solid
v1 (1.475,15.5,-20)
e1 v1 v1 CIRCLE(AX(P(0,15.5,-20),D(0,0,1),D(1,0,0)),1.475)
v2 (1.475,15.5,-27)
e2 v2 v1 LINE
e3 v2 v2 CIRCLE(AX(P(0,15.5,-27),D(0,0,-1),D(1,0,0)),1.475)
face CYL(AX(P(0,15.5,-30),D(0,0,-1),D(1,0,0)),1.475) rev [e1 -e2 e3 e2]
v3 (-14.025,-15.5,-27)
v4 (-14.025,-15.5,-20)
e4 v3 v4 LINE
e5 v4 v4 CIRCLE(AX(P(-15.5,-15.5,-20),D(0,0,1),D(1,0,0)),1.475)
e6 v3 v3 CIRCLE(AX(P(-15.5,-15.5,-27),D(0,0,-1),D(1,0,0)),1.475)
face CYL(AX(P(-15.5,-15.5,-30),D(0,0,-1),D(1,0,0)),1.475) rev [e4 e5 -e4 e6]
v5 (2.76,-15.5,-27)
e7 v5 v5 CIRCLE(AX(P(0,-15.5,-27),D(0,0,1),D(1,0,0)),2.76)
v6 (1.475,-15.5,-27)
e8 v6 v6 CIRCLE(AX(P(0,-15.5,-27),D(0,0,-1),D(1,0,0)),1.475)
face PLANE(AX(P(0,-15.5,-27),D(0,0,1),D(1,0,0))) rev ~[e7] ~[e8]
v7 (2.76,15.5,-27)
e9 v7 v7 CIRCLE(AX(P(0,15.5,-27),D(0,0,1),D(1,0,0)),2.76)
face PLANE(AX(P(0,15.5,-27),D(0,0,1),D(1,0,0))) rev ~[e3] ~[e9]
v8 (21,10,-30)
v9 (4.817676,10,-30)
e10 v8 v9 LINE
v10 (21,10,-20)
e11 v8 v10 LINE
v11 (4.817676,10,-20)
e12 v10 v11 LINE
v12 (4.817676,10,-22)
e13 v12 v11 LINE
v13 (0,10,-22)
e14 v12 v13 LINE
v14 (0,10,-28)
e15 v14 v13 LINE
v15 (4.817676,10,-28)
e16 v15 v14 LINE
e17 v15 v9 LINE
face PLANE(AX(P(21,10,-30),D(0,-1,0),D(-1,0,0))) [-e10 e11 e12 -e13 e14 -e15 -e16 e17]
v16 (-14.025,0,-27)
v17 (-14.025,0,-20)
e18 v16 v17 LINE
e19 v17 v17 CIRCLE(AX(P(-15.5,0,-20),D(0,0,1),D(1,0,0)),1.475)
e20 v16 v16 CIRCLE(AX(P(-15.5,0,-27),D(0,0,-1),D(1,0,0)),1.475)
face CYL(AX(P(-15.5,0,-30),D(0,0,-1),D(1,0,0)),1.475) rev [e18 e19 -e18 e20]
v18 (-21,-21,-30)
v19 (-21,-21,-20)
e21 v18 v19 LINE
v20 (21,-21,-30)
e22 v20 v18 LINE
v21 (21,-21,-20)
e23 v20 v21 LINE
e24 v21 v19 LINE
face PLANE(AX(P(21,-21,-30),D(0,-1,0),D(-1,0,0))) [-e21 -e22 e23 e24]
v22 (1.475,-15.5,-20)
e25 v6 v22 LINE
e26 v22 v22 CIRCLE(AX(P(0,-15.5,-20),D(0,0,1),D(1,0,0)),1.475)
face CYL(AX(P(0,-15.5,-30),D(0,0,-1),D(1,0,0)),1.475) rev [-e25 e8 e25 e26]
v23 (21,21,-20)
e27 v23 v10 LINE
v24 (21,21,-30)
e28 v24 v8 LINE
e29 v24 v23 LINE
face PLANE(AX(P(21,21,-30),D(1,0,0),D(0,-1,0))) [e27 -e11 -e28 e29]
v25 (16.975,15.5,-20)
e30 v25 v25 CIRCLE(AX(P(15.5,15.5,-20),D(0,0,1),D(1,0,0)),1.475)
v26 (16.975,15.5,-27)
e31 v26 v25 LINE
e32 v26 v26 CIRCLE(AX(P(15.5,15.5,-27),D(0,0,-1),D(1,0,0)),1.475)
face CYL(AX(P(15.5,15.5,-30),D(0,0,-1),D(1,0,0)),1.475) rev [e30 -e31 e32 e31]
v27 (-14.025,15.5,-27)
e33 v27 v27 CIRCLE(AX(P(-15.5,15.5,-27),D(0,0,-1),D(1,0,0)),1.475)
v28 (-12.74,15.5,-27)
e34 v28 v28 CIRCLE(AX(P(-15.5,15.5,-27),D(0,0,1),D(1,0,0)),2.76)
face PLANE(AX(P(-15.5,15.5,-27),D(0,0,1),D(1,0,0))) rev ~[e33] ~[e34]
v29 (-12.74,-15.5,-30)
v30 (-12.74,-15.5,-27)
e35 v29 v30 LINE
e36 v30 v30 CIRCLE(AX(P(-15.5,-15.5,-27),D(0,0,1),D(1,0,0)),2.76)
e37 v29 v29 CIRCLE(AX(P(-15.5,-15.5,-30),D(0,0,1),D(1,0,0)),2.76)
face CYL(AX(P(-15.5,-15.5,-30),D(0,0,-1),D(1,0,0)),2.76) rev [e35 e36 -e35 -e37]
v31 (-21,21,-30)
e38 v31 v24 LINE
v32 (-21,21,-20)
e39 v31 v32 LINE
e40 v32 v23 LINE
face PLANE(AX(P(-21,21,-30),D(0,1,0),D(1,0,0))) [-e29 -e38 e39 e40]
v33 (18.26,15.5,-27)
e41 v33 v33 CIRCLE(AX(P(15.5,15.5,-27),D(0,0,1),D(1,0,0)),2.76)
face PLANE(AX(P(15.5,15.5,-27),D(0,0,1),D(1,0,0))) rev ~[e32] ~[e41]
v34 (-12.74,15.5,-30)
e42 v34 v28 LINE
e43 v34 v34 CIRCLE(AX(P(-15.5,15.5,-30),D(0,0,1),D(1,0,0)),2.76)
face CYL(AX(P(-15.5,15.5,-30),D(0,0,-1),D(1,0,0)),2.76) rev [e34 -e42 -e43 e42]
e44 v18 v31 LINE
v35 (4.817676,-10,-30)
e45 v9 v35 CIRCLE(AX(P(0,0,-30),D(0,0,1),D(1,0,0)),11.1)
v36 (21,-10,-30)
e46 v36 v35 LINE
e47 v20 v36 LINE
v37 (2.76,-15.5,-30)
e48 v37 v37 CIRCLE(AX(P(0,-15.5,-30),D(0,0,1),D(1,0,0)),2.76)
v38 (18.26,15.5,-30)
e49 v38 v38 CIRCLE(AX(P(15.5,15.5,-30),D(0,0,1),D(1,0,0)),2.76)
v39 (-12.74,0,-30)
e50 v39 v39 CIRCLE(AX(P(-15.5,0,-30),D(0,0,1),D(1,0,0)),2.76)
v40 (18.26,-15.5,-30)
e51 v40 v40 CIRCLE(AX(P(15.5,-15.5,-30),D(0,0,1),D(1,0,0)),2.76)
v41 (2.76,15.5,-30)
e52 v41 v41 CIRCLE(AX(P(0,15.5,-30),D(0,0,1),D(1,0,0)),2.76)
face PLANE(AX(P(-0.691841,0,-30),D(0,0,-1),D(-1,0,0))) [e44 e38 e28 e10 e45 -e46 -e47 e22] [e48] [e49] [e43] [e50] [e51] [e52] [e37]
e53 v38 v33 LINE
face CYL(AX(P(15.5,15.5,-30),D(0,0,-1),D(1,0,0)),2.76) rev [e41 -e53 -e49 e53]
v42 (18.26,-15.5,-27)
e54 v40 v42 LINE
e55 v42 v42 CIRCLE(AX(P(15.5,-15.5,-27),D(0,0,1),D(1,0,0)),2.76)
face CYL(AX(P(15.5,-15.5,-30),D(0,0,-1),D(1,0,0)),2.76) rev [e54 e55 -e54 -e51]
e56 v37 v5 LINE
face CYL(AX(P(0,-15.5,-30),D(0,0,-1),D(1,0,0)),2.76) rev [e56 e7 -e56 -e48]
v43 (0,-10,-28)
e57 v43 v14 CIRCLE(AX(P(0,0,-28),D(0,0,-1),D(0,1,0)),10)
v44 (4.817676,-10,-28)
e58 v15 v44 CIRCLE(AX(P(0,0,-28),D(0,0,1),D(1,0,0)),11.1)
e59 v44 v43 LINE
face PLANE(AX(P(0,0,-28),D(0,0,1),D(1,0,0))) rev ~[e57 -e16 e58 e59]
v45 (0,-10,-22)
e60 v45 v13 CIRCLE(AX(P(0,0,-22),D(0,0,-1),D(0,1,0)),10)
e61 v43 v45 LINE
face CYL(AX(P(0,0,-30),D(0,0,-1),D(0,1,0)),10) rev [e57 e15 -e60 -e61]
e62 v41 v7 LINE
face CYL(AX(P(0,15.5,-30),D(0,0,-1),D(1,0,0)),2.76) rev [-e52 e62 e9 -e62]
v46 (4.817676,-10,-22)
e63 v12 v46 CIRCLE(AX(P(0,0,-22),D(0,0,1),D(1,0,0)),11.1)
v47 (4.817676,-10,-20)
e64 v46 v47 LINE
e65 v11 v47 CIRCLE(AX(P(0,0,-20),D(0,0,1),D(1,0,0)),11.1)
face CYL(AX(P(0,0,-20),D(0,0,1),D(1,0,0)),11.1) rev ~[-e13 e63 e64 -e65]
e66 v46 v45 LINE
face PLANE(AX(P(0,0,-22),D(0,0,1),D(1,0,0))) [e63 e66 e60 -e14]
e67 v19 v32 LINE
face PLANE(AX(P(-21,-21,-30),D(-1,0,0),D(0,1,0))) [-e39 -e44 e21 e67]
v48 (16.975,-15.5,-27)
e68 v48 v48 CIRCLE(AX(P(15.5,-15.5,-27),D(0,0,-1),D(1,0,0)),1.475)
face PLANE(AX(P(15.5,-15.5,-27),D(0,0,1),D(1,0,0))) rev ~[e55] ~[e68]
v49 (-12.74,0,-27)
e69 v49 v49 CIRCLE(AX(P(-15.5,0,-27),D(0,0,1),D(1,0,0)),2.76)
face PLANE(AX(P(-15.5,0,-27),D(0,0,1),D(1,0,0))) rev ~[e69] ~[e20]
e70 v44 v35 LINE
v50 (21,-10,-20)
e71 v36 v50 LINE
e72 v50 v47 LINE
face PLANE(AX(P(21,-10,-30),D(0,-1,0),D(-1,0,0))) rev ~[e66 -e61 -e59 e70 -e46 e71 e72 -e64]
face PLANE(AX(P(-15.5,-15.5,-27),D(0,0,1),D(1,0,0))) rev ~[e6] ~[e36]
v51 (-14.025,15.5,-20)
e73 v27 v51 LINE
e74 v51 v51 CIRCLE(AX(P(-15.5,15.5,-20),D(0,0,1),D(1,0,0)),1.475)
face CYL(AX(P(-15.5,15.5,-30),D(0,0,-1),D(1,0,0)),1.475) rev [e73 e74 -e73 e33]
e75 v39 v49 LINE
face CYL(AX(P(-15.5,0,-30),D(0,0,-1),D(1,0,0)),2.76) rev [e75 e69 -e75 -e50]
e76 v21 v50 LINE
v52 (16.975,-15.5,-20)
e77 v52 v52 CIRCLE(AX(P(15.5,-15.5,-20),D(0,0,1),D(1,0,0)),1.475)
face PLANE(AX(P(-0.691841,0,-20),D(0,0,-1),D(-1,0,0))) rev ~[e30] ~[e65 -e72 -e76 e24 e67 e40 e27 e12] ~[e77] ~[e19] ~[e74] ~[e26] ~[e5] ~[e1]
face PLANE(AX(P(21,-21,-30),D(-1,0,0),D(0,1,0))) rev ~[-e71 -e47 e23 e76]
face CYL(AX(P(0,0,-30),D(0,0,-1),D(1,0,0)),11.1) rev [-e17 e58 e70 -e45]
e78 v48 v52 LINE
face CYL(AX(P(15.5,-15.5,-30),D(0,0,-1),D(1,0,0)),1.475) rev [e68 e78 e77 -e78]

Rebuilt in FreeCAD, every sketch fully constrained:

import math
import FreeCAD as App
import Part
import Sketcher
Q = App.Units.Quantity

doc = App.newDocument("Part")
body = doc.addObject("PartDesign::Body", "Body")

sketch1 = doc.addObject("Sketcher::SketchObject", "Sketch")
body.addObject(sketch1)
sketch1.AttachmentSupport = (doc.XY_Plane, [""])
sketch1.MapMode = "FlatFace"
sketch1.addGeometry(Part.LineSegment(App.Vector(21, 21, 0), App.Vector(-21, 21, 0)), False)
sketch1.addGeometry(Part.LineSegment(App.Vector(-21, 21, 0), App.Vector(-21, -21, 0)), False)
sketch1.addGeometry(Part.LineSegment(App.Vector(-21, -21, 0), App.Vector(21, -21, 0)), False)
sketch1.addGeometry(Part.LineSegment(App.Vector(21, -21, 0), App.Vector(21, -10, 0)), False)
sketch1.addGeometry(Part.LineSegment(App.Vector(21, -10, 0), App.Vector(0, -10, 0)), False)
sketch1.addGeometry(Part.ArcOfCircle(Part.Circle(App.Vector(0, 0, 0), App.Vector(0, 0, 1), 10), math.radians(90), math.radians(270)), False)
sketch1.addGeometry(Part.LineSegment(App.Vector(0, 10, 0), App.Vector(21, 10, 0)), False)
sketch1.addGeometry(Part.LineSegment(App.Vector(21, 10, 0), App.Vector(21, 21, 0)), False)
sketch1.addGeometry(Part.Circle(App.Vector(15.5, -15.5, 0), App.Vector(0, 0, 1), 1.5), False)
sketch1.addGeometry(Part.Circle(App.Vector(0, -15.5, 0), App.Vector(0, 0, 1), 1.5), False)
sketch1.addGeometry(Part.Circle(App.Vector(-15.5, -15.5, 0), App.Vector(0, 0, 1), 1.5), False)
sketch1.addGeometry(Part.Circle(App.Vector(15.5, 15.5, 0), App.Vector(0, 0, 1), 1.5), False)
sketch1.addGeometry(Part.Circle(App.Vector(-15.5, 0, 0), App.Vector(0, 0, 1), 1.5), False)
sketch1.addGeometry(Part.Circle(App.Vector(0, 15.5, 0), App.Vector(0, 0, 1), 1.5), False)
sketch1.addGeometry(Part.Circle(App.Vector(-15.5, 15.5, 0), App.Vector(0, 0, 1), 1.5), False)
sketch1.addConstraint(Sketcher.Constraint("Coincident", 0, 2, 1, 1))
sketch1.addConstraint(Sketcher.Constraint("Coincident", 1, 2, 2, 1))
sketch1.addConstraint(Sketcher.Constraint("Coincident", 2, 2, 3, 1))
sketch1.addConstraint(Sketcher.Constraint("Coincident", 3, 2, 4, 1))
sketch1.addConstraint(Sketcher.Constraint("Tangent", 4, 2, 5, 2))
sketch1.addConstraint(Sketcher.Constraint("Tangent", 5, 1, 6, 1))
sketch1.addConstraint(Sketcher.Constraint("Coincident", 6, 2, 7, 1))
sketch1.addConstraint(Sketcher.Constraint("Coincident", 7, 2, 0, 1))
sketch1.addConstraint(Sketcher.Constraint("Horizontal", 0))
sketch1.addConstraint(Sketcher.Constraint("Vertical", 1))
sketch1.addConstraint(Sketcher.Constraint("Horizontal", 2))
sketch1.addConstraint(Sketcher.Constraint("Vertical", 3))
sketch1.addConstraint(Sketcher.Constraint("Horizontal", 4))
sketch1.addConstraint(Sketcher.Constraint("Horizontal", 6))
sketch1.addConstraint(Sketcher.Constraint("Vertical", 7))
sketch1.addConstraint(Sketcher.Constraint("Coincident", 5, 3, -1, 1))
sketch1.addConstraint(Sketcher.Constraint("Equal", 8, 9))
sketch1.addConstraint(Sketcher.Constraint("Equal", 9, 10))
sketch1.addConstraint(Sketcher.Constraint("Equal", 10, 11))
sketch1.addConstraint(Sketcher.Constraint("Equal", 11, 12))
sketch1.addConstraint(Sketcher.Constraint("Equal", 12, 13))
sketch1.addConstraint(Sketcher.Constraint("Equal", 13, 14))
sketch1.addConstraint(Sketcher.Constraint("Symmetric", 10, 3, 11, 3, -1, 1))
sketch1.addConstraint(Sketcher.Constraint("Symmetric", 9, 3, 13, 3, -1, 1))
sketch1.addConstraint(Sketcher.Constraint("Symmetric", 8, 3, 14, 3, -1, 1))
sketch1.addConstraint(Sketcher.Constraint("Symmetric", 0, 2, 2, 2, -1, 1))
sketch1.addConstraint(Sketcher.Constraint("Symmetric", 8, 3, 10, 3, -2))
sketch1.addConstraint(Sketcher.Constraint("PointOnObject", 9, 3, -2))
sketch1.addConstraint(Sketcher.Constraint("PointOnObject", 12, 3, -1))
sketch1.addConstraint(Sketcher.Constraint("Horizontal", 8, 3, 9, 3))
sketch1.addConstraint(Sketcher.Constraint("Vertical", 10, 3, 12, 3))
sketch1.addConstraint(Sketcher.Constraint("Vertical", 3, 2, 6, 2))
sketch1.addConstraint(Sketcher.Constraint("Equal", 2, 1))
sketch1.addConstraint(Sketcher.Constraint("Radius", 5, Q("10 mm")))
sketch1.addConstraint(Sketcher.Constraint("Diameter", 8, Q("2.95 mm")))
sketch1.addConstraint(Sketcher.Constraint("DistanceX", 0, 2, 0, 1, Q("42 mm")))
sketch1.addConstraint(Sketcher.Constraint("DistanceX", 10, 3, 8, 3, Q("31 mm")))
sketch1.addConstraint(Sketcher.Constraint("DistanceY", 8, 3, 11, 3, Q("31 mm")))
pad1 = doc.addObject("PartDesign::Pad", "Pad")
body.addObject(pad1)
pad1.Profile = sketch1
pad1.Length = 10

sketch2 = doc.addObject("Sketcher::SketchObject", "Sketch001")
body.addObject(sketch2)
sketch2.AttachmentSupport = (doc.XY_Plane, [""])
sketch2.MapMode = "FlatFace"
sketch2.addGeometry(Part.Circle(App.Vector(-15.5, 15.5, 0), App.Vector(0, 0, 1), 2.8), False)
sketch2.addGeometry(Part.Circle(App.Vector(15.5, 15.5, 0), App.Vector(0, 0, 1), 2.8), False)
sketch2.addGeometry(Part.Circle(App.Vector(-15.5, -15.5, 0), App.Vector(0, 0, 1), 2.8), False)
sketch2.addGeometry(Part.Circle(App.Vector(15.5, -15.5, 0), App.Vector(0, 0, 1), 2.8), False)
sketch2.addGeometry(Part.Circle(App.Vector(-15.5, 0, 0), App.Vector(0, 0, 1), 2.8), False)
sketch2.addGeometry(Part.Circle(App.Vector(0, 15.5, 0), App.Vector(0, 0, 1), 2.8), False)
sketch2.addGeometry(Part.Circle(App.Vector(0, -15.5, 0), App.Vector(0, 0, 1), 2.8), False)
sketch2.addConstraint(Sketcher.Constraint("Equal", 0, 1))
sketch2.addConstraint(Sketcher.Constraint("Equal", 1, 2))
sketch2.addConstraint(Sketcher.Constraint("Equal", 2, 3))
sketch2.addConstraint(Sketcher.Constraint("Equal", 3, 4))
sketch2.addConstraint(Sketcher.Constraint("Equal", 4, 5))
sketch2.addConstraint(Sketcher.Constraint("Equal", 5, 6))
sketch2.addConstraint(Sketcher.Constraint("Symmetric", 1, 3, 2, 3, -1, 1))
sketch2.addConstraint(Sketcher.Constraint("Symmetric", 0, 3, 3, 3, -1, 1))
sketch2.addConstraint(Sketcher.Constraint("Symmetric", 5, 3, 6, 3, -1, 1))
sketch2.addConstraint(Sketcher.Constraint("Symmetric", 0, 3, 1, 3, -2))
sketch2.addConstraint(Sketcher.Constraint("PointOnObject", 4, 3, -1))
sketch2.addConstraint(Sketcher.Constraint("PointOnObject", 5, 3, -2))
sketch2.addConstraint(Sketcher.Constraint("Horizontal", 1, 3, 5, 3))
sketch2.addConstraint(Sketcher.Constraint("Vertical", 2, 3, 4, 3))
sketch2.addConstraint(Sketcher.Constraint("Diameter", 0, Q("5.52 mm")))
sketch2.addConstraint(Sketcher.Constraint("DistanceX", 0, 3, 1, 3, Q("31 mm")))
sketch2.addConstraint(Sketcher.Constraint("DistanceY", 2, 3, 0, 3, Q("31 mm")))
pocket1 = doc.addObject("PartDesign::Pocket", "Pocket")
body.addObject(pocket1)
pocket1.Profile = sketch2
pocket1.Length = 3
pocket1.Reversed = True

sketch3 = doc.addObject("Sketcher::SketchObject", "Sketch002")
body.addObject(sketch3)
sketch3.AttachmentSupport = (doc.XY_Plane, [""])
sketch3.MapMode = "FlatFace"
sketch3.AttachmentOffset = App.Placement(App.Vector(0, 0, 10), App.Rotation())
sketch3.addGeometry(Part.Circle(App.Vector(0, 0, 0), App.Vector(0, 0, 1), 11), False)
sketch3.addConstraint(Sketcher.Constraint("Coincident", 0, 3, -1, 1))
sketch3.addConstraint(Sketcher.Constraint("Diameter", 0, Q("22.2 mm")))
pocket2 = doc.addObject("PartDesign::Pocket", "Pocket001")
body.addObject(pocket2)
pocket2.Profile = sketch3
pocket2.Length = 2

sketch4 = doc.addObject("Sketcher::SketchObject", "Sketch003")
body.addObject(sketch4)
sketch4.AttachmentSupport = (doc.XY_Plane, [""])
sketch4.MapMode = "FlatFace"
sketch4.addGeometry(Part.Circle(App.Vector(0, 0, 0), App.Vector(0, 0, 1), 11), False)
sketch4.addConstraint(Sketcher.Constraint("Coincident", 0, 3, -1, 1))
sketch4.addConstraint(Sketcher.Constraint("Diameter", 0, Q("22.2 mm")))
pocket3 = doc.addObject("PartDesign::Pocket", "Pocket002")
body.addObject(pocket3)
pocket3.Profile = sketch4
pocket3.Length = 2
pocket3.Reversed = True
body2 = doc.addObject("PartDesign::Body", "Body001")
doc.recompute()

body.Placement = App.Placement(App.Vector(0, 0, -30), App.Rotation(App.Vector(0, 0, 1), 0))
boolean = doc.addObject("PartDesign::Boolean", "Boolean")
body2.addObject(boolean)
boolean.Type = "Fuse"
boolean.addObjects([body])

doc.recompute()
